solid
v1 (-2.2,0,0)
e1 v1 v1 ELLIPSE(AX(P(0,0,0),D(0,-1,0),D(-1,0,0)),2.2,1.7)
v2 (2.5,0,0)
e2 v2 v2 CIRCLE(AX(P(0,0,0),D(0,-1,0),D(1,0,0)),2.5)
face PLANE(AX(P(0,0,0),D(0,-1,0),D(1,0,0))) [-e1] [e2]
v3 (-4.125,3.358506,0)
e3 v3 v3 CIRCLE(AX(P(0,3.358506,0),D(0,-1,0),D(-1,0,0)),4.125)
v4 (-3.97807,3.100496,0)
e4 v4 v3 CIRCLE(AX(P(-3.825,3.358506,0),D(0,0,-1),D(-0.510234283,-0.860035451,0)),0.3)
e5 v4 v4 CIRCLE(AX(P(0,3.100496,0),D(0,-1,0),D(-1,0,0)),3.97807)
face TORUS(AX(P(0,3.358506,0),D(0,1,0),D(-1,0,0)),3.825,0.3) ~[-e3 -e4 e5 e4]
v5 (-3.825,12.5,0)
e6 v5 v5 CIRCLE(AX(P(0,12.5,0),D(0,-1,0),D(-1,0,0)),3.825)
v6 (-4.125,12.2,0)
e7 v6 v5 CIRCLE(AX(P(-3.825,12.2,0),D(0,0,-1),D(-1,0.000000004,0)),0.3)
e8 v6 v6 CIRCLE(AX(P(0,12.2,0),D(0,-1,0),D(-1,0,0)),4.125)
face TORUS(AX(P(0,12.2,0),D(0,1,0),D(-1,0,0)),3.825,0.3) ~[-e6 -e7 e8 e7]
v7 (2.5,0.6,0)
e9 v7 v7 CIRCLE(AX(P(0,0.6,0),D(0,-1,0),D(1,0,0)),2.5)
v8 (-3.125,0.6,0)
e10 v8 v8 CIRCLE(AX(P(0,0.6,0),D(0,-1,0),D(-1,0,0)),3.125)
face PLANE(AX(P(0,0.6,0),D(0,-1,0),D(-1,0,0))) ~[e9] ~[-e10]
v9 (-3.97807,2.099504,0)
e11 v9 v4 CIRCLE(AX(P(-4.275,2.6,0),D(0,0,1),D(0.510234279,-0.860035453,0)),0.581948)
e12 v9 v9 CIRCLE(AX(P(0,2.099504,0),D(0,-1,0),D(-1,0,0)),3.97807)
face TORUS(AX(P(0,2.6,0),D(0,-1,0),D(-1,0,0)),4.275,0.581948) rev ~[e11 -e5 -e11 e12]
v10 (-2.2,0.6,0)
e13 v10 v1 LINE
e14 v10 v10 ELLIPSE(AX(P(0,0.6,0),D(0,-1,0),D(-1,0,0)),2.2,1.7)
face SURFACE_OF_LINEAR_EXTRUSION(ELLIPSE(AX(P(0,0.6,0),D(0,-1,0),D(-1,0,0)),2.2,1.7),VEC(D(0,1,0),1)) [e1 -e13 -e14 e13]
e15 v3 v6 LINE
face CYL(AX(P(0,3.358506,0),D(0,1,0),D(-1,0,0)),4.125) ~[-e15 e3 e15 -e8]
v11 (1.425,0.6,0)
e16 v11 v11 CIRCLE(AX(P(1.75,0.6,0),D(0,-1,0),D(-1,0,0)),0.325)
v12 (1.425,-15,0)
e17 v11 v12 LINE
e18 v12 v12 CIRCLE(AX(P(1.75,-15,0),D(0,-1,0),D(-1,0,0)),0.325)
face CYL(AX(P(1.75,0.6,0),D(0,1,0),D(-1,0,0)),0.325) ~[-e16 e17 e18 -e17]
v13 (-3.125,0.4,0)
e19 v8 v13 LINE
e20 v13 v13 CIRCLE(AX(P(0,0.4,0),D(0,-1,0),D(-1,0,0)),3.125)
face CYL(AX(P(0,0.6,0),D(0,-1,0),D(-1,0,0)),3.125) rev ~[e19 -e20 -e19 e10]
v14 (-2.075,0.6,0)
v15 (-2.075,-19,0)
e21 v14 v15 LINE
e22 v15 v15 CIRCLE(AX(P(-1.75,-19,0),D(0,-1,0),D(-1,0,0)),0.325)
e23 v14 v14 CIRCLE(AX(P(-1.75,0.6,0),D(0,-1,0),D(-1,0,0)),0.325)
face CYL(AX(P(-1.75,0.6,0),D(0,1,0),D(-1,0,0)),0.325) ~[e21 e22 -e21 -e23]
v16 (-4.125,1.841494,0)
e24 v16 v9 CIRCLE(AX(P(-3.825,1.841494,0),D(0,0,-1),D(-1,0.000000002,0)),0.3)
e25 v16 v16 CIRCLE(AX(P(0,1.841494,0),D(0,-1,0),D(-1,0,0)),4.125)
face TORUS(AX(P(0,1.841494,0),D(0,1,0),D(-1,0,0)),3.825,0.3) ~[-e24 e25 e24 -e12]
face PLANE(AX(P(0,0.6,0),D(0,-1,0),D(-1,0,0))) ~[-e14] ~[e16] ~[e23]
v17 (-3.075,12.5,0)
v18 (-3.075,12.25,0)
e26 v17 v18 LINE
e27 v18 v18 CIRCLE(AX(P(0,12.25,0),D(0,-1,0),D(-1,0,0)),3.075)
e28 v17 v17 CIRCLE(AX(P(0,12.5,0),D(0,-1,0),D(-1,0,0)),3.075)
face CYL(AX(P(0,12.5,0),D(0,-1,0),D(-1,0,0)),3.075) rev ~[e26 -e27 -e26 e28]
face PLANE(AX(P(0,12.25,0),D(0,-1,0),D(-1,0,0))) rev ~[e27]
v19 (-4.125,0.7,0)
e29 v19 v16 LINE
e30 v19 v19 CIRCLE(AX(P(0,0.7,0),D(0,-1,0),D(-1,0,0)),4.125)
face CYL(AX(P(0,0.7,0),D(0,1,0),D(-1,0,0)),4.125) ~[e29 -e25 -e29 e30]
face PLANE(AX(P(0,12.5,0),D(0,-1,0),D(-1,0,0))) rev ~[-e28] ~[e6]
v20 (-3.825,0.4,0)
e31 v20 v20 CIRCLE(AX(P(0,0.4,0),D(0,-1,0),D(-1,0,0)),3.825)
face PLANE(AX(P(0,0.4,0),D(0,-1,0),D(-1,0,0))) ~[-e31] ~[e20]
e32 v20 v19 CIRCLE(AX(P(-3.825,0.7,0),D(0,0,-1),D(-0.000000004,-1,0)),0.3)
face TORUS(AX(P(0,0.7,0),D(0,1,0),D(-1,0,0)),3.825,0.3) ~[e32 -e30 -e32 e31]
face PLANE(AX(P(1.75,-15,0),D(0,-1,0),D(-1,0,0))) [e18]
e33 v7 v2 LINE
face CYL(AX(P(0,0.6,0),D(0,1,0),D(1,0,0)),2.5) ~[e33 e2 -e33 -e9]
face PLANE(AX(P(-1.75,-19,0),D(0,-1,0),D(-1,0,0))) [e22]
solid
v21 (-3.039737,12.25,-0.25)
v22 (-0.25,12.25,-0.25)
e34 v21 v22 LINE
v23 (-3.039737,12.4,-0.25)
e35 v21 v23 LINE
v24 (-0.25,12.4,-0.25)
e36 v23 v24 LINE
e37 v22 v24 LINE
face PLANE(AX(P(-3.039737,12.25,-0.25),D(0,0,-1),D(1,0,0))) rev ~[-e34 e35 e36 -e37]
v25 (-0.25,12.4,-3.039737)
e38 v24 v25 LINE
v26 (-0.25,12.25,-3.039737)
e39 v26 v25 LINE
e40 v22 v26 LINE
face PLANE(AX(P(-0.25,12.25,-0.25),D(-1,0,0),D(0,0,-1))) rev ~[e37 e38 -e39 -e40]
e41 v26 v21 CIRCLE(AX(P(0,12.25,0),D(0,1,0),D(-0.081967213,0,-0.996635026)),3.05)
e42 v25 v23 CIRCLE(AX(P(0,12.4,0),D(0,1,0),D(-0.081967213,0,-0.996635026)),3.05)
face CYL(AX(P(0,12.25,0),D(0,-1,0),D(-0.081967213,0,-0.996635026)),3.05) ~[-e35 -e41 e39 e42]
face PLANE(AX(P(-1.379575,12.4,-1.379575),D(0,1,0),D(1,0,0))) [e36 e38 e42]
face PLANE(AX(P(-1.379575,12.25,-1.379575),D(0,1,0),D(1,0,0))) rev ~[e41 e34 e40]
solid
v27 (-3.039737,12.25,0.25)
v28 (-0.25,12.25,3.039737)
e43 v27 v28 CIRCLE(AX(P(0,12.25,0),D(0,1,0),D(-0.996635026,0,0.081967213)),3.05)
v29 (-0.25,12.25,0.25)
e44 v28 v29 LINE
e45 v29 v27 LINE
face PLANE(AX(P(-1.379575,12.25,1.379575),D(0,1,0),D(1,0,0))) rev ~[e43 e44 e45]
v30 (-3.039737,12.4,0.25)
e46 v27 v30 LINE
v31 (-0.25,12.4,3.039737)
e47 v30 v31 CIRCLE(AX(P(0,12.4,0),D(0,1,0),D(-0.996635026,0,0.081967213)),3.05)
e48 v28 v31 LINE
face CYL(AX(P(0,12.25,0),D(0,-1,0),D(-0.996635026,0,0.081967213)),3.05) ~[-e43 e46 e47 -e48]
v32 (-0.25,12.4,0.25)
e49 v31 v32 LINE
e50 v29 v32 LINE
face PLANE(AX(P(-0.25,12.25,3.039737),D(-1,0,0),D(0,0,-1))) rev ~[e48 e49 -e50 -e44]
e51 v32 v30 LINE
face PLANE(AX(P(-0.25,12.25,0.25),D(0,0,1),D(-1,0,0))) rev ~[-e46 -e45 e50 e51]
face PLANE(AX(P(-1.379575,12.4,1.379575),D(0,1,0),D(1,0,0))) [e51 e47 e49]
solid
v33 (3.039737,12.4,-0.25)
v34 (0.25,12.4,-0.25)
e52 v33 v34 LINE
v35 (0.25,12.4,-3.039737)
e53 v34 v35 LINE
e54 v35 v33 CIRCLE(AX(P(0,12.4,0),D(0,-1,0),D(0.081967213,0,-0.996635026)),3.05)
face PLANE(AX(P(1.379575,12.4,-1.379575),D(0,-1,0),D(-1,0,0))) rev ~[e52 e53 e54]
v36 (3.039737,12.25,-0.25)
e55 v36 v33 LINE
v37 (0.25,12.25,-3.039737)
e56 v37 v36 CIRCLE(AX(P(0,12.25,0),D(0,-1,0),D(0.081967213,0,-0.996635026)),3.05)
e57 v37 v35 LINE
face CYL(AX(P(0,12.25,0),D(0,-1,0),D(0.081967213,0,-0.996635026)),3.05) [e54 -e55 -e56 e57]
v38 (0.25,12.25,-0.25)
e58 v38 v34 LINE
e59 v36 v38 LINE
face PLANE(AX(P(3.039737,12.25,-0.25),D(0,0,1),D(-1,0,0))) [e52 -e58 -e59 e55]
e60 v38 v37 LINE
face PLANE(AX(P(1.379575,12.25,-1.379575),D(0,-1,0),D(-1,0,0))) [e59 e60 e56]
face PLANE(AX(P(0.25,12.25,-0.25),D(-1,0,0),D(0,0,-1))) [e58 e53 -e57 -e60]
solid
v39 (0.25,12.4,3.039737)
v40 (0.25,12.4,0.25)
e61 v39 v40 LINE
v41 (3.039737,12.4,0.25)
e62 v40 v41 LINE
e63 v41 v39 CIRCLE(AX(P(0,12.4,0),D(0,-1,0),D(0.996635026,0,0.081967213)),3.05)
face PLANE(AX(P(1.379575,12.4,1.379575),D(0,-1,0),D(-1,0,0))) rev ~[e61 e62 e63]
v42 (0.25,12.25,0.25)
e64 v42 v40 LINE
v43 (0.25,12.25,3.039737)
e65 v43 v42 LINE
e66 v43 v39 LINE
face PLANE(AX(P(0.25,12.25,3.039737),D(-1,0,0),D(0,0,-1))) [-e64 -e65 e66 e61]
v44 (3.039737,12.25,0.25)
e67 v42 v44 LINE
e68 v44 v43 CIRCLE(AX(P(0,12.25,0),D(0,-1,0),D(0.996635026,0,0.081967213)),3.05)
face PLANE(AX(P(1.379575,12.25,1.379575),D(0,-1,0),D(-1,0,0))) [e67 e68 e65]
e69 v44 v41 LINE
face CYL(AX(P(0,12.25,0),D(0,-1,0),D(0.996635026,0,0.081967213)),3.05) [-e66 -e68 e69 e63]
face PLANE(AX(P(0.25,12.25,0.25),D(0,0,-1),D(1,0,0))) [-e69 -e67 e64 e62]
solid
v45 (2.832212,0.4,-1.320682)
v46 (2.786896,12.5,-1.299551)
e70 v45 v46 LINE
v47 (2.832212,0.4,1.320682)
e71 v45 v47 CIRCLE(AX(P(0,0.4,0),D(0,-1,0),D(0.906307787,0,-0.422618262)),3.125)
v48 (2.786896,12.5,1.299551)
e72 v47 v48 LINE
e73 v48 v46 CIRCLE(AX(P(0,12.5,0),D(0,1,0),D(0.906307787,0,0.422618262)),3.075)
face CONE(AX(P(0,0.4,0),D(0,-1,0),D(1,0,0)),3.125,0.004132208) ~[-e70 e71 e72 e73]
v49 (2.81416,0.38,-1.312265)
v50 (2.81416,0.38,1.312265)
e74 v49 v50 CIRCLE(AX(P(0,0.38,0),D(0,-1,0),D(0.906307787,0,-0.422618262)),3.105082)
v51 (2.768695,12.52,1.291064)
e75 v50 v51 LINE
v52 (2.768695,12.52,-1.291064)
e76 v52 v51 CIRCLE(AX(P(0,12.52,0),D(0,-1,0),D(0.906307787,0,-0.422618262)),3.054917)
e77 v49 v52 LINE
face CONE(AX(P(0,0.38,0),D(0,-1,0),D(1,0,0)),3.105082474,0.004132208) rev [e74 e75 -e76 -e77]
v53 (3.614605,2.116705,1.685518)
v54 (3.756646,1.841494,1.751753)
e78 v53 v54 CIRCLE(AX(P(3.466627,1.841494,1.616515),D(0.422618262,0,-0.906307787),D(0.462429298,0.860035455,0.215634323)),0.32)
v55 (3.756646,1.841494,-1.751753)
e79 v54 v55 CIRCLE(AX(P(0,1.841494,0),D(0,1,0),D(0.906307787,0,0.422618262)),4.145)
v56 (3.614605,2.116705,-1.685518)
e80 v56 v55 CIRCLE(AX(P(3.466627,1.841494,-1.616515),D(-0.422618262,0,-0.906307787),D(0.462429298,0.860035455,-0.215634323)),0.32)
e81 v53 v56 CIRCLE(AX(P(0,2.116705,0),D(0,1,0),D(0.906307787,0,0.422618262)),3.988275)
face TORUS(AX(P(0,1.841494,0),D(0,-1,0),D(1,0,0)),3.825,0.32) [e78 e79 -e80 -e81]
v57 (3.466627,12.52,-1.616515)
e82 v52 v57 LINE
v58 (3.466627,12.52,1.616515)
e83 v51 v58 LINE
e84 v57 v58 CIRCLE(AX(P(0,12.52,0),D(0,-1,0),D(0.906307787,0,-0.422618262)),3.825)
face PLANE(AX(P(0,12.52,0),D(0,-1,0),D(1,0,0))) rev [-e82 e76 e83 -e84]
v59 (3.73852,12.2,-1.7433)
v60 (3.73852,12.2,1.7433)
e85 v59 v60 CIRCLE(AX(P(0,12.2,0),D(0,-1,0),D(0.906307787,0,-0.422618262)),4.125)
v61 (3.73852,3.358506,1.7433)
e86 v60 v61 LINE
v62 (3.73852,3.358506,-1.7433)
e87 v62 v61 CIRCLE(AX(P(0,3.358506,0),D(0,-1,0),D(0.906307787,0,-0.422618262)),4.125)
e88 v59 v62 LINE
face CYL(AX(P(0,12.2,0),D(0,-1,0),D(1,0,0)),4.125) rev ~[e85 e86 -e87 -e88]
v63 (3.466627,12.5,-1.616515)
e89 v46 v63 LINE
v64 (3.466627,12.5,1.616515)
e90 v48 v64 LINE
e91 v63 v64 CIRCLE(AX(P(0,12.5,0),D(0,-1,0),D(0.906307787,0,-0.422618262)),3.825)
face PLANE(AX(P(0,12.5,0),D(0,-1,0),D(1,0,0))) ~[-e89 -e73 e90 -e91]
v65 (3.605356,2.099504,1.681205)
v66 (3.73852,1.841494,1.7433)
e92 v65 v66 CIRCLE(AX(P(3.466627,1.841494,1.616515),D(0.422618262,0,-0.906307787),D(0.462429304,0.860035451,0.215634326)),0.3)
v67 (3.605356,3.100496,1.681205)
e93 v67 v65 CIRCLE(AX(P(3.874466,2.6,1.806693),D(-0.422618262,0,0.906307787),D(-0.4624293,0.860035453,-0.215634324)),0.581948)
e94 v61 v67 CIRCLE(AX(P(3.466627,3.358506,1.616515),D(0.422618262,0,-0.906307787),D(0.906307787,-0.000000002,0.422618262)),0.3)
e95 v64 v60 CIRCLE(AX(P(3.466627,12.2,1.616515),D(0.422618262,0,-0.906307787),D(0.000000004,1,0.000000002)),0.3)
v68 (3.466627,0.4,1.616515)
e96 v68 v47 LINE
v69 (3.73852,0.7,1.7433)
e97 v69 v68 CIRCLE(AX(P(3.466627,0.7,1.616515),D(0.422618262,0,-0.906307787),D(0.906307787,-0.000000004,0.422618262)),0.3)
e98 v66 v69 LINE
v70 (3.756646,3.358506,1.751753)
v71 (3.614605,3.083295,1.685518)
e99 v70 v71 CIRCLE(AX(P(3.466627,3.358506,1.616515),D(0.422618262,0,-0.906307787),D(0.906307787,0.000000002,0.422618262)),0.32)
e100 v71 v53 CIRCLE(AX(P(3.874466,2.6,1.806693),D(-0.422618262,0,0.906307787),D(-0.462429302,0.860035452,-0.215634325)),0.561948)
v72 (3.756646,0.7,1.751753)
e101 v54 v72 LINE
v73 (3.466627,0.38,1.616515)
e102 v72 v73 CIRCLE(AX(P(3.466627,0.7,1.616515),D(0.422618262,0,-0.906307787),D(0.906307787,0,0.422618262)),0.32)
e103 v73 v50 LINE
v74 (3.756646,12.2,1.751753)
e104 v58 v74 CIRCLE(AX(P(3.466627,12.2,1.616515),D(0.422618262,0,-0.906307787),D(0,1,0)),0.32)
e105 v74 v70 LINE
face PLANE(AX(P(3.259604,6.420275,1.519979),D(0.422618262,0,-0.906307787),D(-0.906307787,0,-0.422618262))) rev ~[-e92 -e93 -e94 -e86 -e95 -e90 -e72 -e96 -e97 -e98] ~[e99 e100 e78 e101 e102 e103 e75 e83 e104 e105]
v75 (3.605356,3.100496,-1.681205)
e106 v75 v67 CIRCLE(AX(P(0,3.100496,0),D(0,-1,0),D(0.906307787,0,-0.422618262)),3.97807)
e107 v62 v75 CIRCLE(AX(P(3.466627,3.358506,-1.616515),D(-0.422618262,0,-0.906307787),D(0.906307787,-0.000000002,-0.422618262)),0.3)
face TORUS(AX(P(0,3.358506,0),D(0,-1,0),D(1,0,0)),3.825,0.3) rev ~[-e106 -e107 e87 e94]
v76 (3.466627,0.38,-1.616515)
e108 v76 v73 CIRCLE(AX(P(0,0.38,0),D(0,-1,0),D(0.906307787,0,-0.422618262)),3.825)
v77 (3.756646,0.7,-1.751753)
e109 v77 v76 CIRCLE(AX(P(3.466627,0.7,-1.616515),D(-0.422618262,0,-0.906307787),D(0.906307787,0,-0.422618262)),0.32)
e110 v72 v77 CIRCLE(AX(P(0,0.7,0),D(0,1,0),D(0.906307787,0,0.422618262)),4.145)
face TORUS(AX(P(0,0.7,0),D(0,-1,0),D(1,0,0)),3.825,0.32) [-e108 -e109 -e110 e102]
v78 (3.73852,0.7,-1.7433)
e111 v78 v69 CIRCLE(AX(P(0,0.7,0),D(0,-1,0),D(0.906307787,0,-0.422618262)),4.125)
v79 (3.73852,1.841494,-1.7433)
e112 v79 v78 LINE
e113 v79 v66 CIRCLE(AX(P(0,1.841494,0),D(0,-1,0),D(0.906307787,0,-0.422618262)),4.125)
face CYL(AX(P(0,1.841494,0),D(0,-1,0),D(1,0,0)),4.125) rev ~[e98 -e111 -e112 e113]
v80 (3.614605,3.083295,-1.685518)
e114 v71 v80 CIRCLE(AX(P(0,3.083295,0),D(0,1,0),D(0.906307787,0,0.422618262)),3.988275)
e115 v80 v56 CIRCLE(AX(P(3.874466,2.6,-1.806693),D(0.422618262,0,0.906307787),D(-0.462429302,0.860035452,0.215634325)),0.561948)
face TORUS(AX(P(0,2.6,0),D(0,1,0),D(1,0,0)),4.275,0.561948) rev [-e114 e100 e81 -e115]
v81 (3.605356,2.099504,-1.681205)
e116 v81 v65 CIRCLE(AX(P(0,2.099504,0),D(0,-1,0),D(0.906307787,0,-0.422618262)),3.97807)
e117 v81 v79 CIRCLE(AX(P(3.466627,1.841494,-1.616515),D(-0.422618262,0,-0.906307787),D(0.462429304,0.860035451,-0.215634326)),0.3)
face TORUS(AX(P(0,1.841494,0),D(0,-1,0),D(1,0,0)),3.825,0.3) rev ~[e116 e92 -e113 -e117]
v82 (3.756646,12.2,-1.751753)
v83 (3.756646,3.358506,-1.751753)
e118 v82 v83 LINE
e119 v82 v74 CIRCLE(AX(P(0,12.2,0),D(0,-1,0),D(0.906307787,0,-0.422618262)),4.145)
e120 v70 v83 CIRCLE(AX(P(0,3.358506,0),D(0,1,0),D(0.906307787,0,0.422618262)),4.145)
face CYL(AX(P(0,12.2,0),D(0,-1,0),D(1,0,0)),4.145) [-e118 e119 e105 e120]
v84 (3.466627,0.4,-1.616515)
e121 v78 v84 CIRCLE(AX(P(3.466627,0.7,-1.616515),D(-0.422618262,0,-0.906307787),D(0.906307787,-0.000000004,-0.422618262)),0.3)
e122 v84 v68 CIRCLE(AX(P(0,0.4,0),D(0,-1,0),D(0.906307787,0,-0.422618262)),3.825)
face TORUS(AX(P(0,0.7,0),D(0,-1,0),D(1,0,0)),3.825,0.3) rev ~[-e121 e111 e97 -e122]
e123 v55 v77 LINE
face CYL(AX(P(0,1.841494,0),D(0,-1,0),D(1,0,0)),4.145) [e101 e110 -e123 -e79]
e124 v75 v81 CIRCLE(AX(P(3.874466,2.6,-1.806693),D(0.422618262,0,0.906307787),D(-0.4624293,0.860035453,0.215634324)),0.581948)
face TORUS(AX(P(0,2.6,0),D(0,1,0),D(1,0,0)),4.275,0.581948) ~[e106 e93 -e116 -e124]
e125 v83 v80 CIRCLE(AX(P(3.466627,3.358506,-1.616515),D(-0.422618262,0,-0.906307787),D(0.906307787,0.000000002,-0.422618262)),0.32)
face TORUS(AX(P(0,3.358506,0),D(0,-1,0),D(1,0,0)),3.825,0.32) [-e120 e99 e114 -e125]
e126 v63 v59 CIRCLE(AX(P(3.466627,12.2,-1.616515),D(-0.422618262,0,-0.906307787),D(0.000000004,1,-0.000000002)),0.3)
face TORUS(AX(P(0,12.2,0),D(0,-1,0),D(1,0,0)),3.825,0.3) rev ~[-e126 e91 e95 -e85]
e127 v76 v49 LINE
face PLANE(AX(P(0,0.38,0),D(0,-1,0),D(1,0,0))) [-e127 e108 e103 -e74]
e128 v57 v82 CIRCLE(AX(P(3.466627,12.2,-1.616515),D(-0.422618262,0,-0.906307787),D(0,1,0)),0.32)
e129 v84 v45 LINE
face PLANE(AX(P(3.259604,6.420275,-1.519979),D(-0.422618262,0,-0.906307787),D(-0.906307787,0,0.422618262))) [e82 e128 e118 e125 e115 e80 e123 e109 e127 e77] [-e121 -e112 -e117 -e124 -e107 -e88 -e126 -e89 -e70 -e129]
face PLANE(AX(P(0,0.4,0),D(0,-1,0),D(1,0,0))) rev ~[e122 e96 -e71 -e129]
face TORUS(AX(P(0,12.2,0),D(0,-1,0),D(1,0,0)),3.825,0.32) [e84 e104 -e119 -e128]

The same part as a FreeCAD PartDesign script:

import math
import FreeCAD as App
import Part
import Sketcher
from FreeCAD import Vector
Q = App.Units.Quantity

doc = App.newDocument("Part")
body = doc.addObject("PartDesign::Body", "Body")

sketch1 = body.newObject("Sketcher::SketchObject", "Sketch")
sketch1.AttachmentSupport = (doc.getObject("XY_Plane"), [""])
sketch1.MapMode = "FlatFace"
sketch1.addGeometry(Part.LineSegment(Vector(0, 0.6, 0), Vector(3.12, 0.6, 0)), False)
sketch1.addGeometry(Part.LineSegment(Vector(3.12, 0.6, 0), Vector(3.12, 0.4, 0)), False)
sketch1.addGeometry(Part.LineSegment(Vector(3.12, 0.4, 0), Vector(3.83, 0.4, 0)), False)
sketch1.addGeometry(Part.ArcOfCircle(Part.Circle(Vector(3.82, 0.7, 0), Vector(0, 0, 1), 0.3), math.radians(-90), math.radians(0)), False)
sketch1.addGeometry(Part.LineSegment(Vector(4.12, 0.7, 0), Vector(4.12, 1.84, 0)), False)
sketch1.addGeometry(Part.ArcOfCircle(Part.Circle(Vector(3.82, 1.84, 0), Vector(0, 0, 1), 0.3), math.radians(0), math.radians(59)), False)
sketch1.addGeometry(Part.ArcOfCircle(Part.Circle(Vector(4.28, 2.6, 0), Vector(0, 0, 1), 0.58), math.radians(121), math.radians(239)), False)
sketch1.addGeometry(Part.ArcOfCircle(Part.Circle(Vector(3.82, 3.36, 0), Vector(0, 0, 1), 0.3), math.radians(-59), math.radians(0)), False)
sketch1.addGeometry(Part.LineSegment(Vector(4.12, 3.36, 0), Vector(4.12, 12.2, 0)), False)
sketch1.addGeometry(Part.ArcOfCircle(Part.Circle(Vector(3.82, 12.2, 0), Vector(0, 0, 1), 0.3), math.radians(0), math.radians(90)), False)
sketch1.addGeometry(Part.LineSegment(Vector(3.83, 12.5, 0), Vector(3.08, 12.5, 0)), False)
sketch1.addGeometry(Part.LineSegment(Vector(3.08, 12.5, 0), Vector(3.08, 12.25, 0)), False)
sketch1.addGeometry(Part.LineSegment(Vector(3.08, 12.25, 0), Vector(0, 12.25, 0)), False)
sketch1.addGeometry(Part.LineSegment(Vector(0, 12.25, 0), Vector(0, 0.6, 0)), False)
sketch1.addConstraint(Sketcher.Constraint("Coincident", 0, 2, 1, 1))
sketch1.addConstraint(Sketcher.Constraint("Coincident", 1, 2, 2, 1))
sketch1.addConstraint(Sketcher.Constraint("Tangent", 2, 2, 3, 1))
sketch1.addConstraint(Sketcher.Constraint("Tangent", 3, 2, 4, 1))
sketch1.addConstraint(Sketcher.Constraint("Tangent", 4, 2, 5, 1))
sketch1.addConstraint(Sketcher.Constraint("Tangent", 5, 2, 6, 2))
sketch1.addConstraint(Sketcher.Constraint("Tangent", 6, 1, 7, 1))
sketch1.addConstraint(Sketcher.Constraint("Tangent", 7, 2, 8, 1))
sketch1.addConstraint(Sketcher.Constraint("Tangent", 8, 2, 9, 1))
sketch1.addConstraint(Sketcher.Constraint("Tangent", 9, 2, 10, 1))
sketch1.addConstraint(Sketcher.Constraint("Coincident", 10, 2, 11, 1))
sketch1.addConstraint(Sketcher.Constraint("Coincident", 11, 2, 12, 1))
sketch1.addConstraint(Sketcher.Constraint("Coincident", 12, 2, 13, 1))
sketch1.addConstraint(Sketcher.Constraint("Coincident", 13, 2, 0, 1))
sketch1.addConstraint(Sketcher.Constraint("Horizontal", 0))
sketch1.addConstraint(Sketcher.Constraint("Vertical", 1))
sketch1.addConstraint(Sketcher.Constraint("Horizontal", 2))
sketch1.addConstraint(Sketcher.Constraint("Vertical", 4))
sketch1.addConstraint(Sketcher.Constraint("Vertical", 8))
sketch1.addConstraint(Sketcher.Constraint("Horizontal", 10))
sketch1.addConstraint(Sketcher.Constraint("Vertical", 11))
sketch1.addConstraint(Sketcher.Constraint("Horizontal", 12))
sketch1.addConstraint(Sketcher.Constraint("Vertical", 13))
sketch1.addConstraint(Sketcher.Constraint("Equal", 3, 5))
sketch1.addConstraint(Sketcher.Constraint("Equal", 5, 7))
sketch1.addConstraint(Sketcher.Constraint("Equal", 7, 9))
sketch1.addConstraint(Sketcher.Constraint("PointOnObject", 12, 2, -2))
sketch1.addConstraint(Sketcher.Constraint("Vertical", 5, 3, 7, 3))
sketch1.addConstraint(Sketcher.Constraint("Radius", 3, Q("0.3 mm")))
sketch1.addConstraint(Sketcher.Constraint("DistanceX", 2, 1, 2, 2, Q("0.7 mm")))
sketch1.addConstraint(Sketcher.Constraint("DistanceY", 1, 2, 1, 1, Q("0.2 mm")))
sketch1.addConstraint(Sketcher.Constraint("DistanceY", 0, 2, 6, 3, Q("2 mm")))
sketch1.addConstraint(Sketcher.Constraint("DistanceX", 10, 2, 10, 1, Q("0.75 mm")))
sketch1.addConstraint(Sketcher.Constraint("DistanceY", 11, 2, 11, 1, Q("0.25 mm")))
sketch1.addConstraint(Sketcher.Constraint("DistanceY", 13, 2, 13, 1, Q("11.65 mm")))
sketch1.addConstraint(Sketcher.Constraint("DistanceY", -1, 1, 3, 3, Q("0.7 mm")))
sketch1.addConstraint(Sketcher.Constraint("DistanceX", 0, 1, 0, 2, Q("3.125 mm")))
sketch1.addConstraint(Sketcher.Constraint("DistanceX", 5, 3, 6, 3, Q("0.45 mm")))
sketch1.addConstraint(Sketcher.Constraint("Radius", 6, Q("0.581948 mm")))
revolution = body.newObject("PartDesign::Revolution", "Revolution")
revolution.Profile = sketch1
revolution.ReferenceAxis = (sketch1, ["V_Axis"])
revolution.Angle = 360
body2 = doc.addObject("PartDesign::Body", "Body001")

sketch2 = body2.newObject("Sketcher::SketchObject", "Sketch001")
sketch2.AttachmentSupport = (doc.getObject("XZ_Plane001"), [""])
sketch2.MapMode = "FlatFace"
sketch2.AttachmentOffset = App.Placement(Vector(0, 0, -12.25), App.Rotation())
sketch2.addGeometry(Part.LineSegment(Vector(-0.2, -0.2, 0), Vector(-0.2, -3, 0)), False)
sketch2.addGeometry(Part.ArcOfCircle(Part.Circle(Vector(0, 0, 0), Vector(0, 0, 1), 3), math.radians(-175), math.radians(-95)), False)
sketch2.addGeometry(Part.LineSegment(Vector(-3, -0.2, 0), Vector(-0.2, -0.2, 0)), False)
sketch2.addConstraint(Sketcher.Constraint("Coincident", 0, 2, 1, 2))
sketch2.addConstraint(Sketcher.Constraint("Coincident", 1, 1, 2, 1))
sketch2.addConstraint(Sketcher.Constraint("Coincident", 2, 2, 0, 1))
sketch2.addConstraint(Sketcher.Constraint("Vertical", 0))
sketch2.addConstraint(Sketcher.Constraint("Horizontal", 2))
sketch2.addConstraint(Sketcher.Constraint("Coincident", 1, 3, -1, 1))
sketch2.addConstraint(Sketcher.Constraint("Equal", 2, 0))
sketch2.addConstraint(Sketcher.Constraint("Radius", 1, Q("3.05 mm")))
sketch2.addConstraint(Sketcher.Constraint("DistanceX", 0, 2, -1, 1, Q("0.25 mm")))
pad1 = body2.newObject("PartDesign::Pad", "Pad")
pad1.Profile = sketch2
pad1.Length = 0.15
pad1.Reversed = True
body3 = doc.addObject("PartDesign::Body", "Body002")

sketch3 = body3.newObject("Sketcher::SketchObject", "Sketch002")
sketch3.AttachmentSupport = (doc.getObject("XZ_Plane002"), [""])
sketch3.MapMode = "FlatFace"
sketch3.AttachmentOffset = App.Placement(Vector(0, 0, -12.25), App.Rotation())
sketch3.addGeometry(Part.LineSegment(Vector(0.2, 0.2, 0), Vector(0.2, 3, 0)), False)
sketch3.addGeometry(Part.ArcOfCircle(Part.Circle(Vector(0, 0, 0), Vector(0, 0, 1), 3), math.radians(5), math.radians(85)), False)
sketch3.addGeometry(Part.LineSegment(Vector(3, 0.2, 0), Vector(0.2, 0.2, 0)), False)
sketch3.addConstraint(Sketcher.Constraint("Coincident", 0, 2, 1, 2))
sketch3.addConstraint(Sketcher.Constraint("Coincident", 1, 1, 2, 1))
sketch3.addConstraint(Sketcher.Constraint("Coincident", 2, 2, 0, 1))
sketch3.addConstraint(Sketcher.Constraint("Vertical", 0))
sketch3.addConstraint(Sketcher.Constraint("Horizontal", 2))
sketch3.addConstraint(Sketcher.Constraint("Coincident", 1, 3, -1, 1))
sketch3.addConstraint(Sketcher.Constraint("Equal", 2, 0))
sketch3.addConstraint(Sketcher.Constraint("Radius", 1, Q("3.05 mm")))
sketch3.addConstraint(Sketcher.Constraint("DistanceX", -1, 1, 0, 2, Q("0.25 mm")))
pad2 = body3.newObject("PartDesign::Pad", "Pad001")
pad2.Profile = sketch3
pad2.Length = 0.15
pad2.Reversed = True
body4 = doc.addObject("PartDesign::Body", "Body003")

sketch4 = body4.newObject("Sketcher::SketchObject", "Sketch003")
sketch4.AttachmentSupport = (doc.getObject("XZ_Plane003"), [""])
sketch4.MapMode = "FlatFace"
sketch4.AttachmentOffset = App.Placement(Vector(0, 0, -12.25), App.Rotation())
sketch4.addGeometry(Part.LineSegment(Vector(-0.2, 3, 0), Vector(-0.2, 0.2, 0)), False)
sketch4.addGeometry(Part.LineSegment(Vector(-0.2, 0.2, 0), Vector(-3, 0.2, 0)), False)
sketch4.addGeometry(Part.ArcOfCircle(Part.Circle(Vector(0, 0, 0), Vector(0, 0, 1), 3), math.radians(95), math.radians(175)), False)
sketch4.addConstraint(Sketcher.Constraint("Coincident", 0, 2, 1, 1))
sketch4.addConstraint(Sketcher.Constraint("Coincident", 1, 2, 2, 2))
sketch4.addConstraint(Sketcher.Constraint("Coincident", 2, 1, 0, 1))
sketch4.addConstraint(Sketcher.Constraint("Vertical", 0))
sketch4.addConstraint(Sketcher.Constraint("Horizontal", 1))
sketch4.addConstraint(Sketcher.Constraint("Coincident", 2, 3, -1, 1))
sketch4.addConstraint(Sketcher.Constraint("Equal", 1, 0))
sketch4.addConstraint(Sketcher.Constraint("Radius", 2, Q("3.05 mm")))
sketch4.addConstraint(Sketcher.Constraint("DistanceX", 0, 2, -1, 1, Q("0.25 mm")))
pad3 = body4.newObject("PartDesign::Pad", "Pad002")
pad3.Profile = sketch4
pad3.Length = 0.15
pad3.Reversed = True
body5 = doc.addObject("PartDesign::Body", "Body004")

sketch5 = body5.newObject("Sketcher::SketchObject", "Sketch004")
sketch5.AttachmentSupport = (doc.getObject("XZ_Plane004"), [""])
sketch5.MapMode = "FlatFace"
sketch5.AttachmentOffset = App.Placement(Vector(0, 0, -12.25), App.Rotation())
sketch5.addGeometry(Part.LineSegment(Vector(0.2, -3, 0), Vector(0.2, -0.2, 0)), False)
sketch5.addGeometry(Part.LineSegment(Vector(0.2, -0.2, 0), Vector(3, -0.2, 0)), False)
sketch5.addGeometry(Part.ArcOfCircle(Part.Circle(Vector(0, 0, 0), Vector(0, 0, 1), 3), math.radians(-85), math.radians(-5)), False)
sketch5.addConstraint(Sketcher.Constraint("Coincident", 0, 2, 1, 1))
sketch5.addConstraint(Sketcher.Constraint("Coincident", 1, 2, 2, 2))
sketch5.addConstraint(Sketcher.Constraint("Coincident", 2, 1, 0, 1))
sketch5.addConstraint(Sketcher.Constraint("Vertical", 0))
sketch5.addConstraint(Sketcher.Constraint("Horizontal", 1))
sketch5.addConstraint(Sketcher.Constraint("Coincident", 2, 3, -1, 1))
sketch5.addConstraint(Sketcher.Constraint("Equal", 1, 0))
sketch5.addConstraint(Sketcher.Constraint("Radius", 2, Q("3.05 mm")))
sketch5.addConstraint(Sketcher.Constraint("DistanceX", -1, 1, 0, 2, Q("0.25 mm")))
pad4 = body5.newObject("PartDesign::Pad", "Pad003")
pad4.Profile = sketch5
pad4.Length = 0.15
pad4.Reversed = True
body6 = doc.addObject("PartDesign::Body", "Body005")

sketch6 = body6.newObject("Sketcher::SketchObject", "Sketch005")
sketch6.AttachmentSupport = (doc.getObject("XZ_Plane005"), [""])
sketch6.MapMode = "FlatFace"
sketch6.AttachmentOffset = App.Placement(Vector(0, 0, -0.6), App.Rotation())
sketch6.addGeometry(Part.Circle(Vector(0, 0, 0), Vector(0, 0, 1), 2.5), False)
sketch6.addGeometry(Part.Ellipse(Vector(-2.2, 0, 0), Vector(0, -1.7, 0), Vector(0, 0, 0)), False)
sketch6.addConstraint(Sketcher.Constraint("Block", 1))
sketch6.addConstraint(Sketcher.Constraint("Coincident", 0, 3, -1, 1))
sketch6.addConstraint(Sketcher.Constraint("Diameter", 0, Q("5 mm")))
pad5 = body6.newObject("PartDesign::Pad", "Pad004")
pad5.Profile = sketch6
pad5.Length = 0.6
body7 = doc.addObject("PartDesign::Body", "Body006")

sketch7 = body7.newObject("Sketcher::SketchObject", "Sketch006")
sketch7.AttachmentSupport = (doc.getObject("XY_Plane006"), [""])
sketch7.MapMode = "FlatFace"
sketch7.addGeometry(Part.LineSegment(Vector(4.14, 3.36, 0), Vector(4.14, 12.2, 0)), False)
sketch7.addGeometry(Part.ArcOfCircle(Part.Circle(Vector(3.83, 12.2, 0), Vector(0, 0, 1), 0.32), math.radians(0), math.radians(90)), False)
sketch7.addGeometry(Part.LineSegment(Vector(3.83, 12.52, 0), Vector(3.05, 12.52, 0)), False)
sketch7.addGeometry(Part.LineSegment(Vector(3.05, 12.52, 0), Vector(3.11, 0.38, 0)), False)
sketch7.addGeometry(Part.LineSegment(Vector(3.11, 0.38, 0), Vector(3.83, 0.38, 0)), False)
sketch7.addGeometry(Part.ArcOfCircle(Part.Circle(Vector(3.83, 0.7, 0), Vector(0, 0, 1), 0.32), math.radians(-90), math.radians(0)), False)
sketch7.addGeometry(Part.LineSegment(Vector(4.14, 0.7, 0), Vector(4.14, 1.84, 0)), False)
sketch7.addGeometry(Part.ArcOfCircle(Part.Circle(Vector(3.83, 1.84, 0), Vector(0, 0, 1), 0.32), math.radians(0), math.radians(59)), False)
sketch7.addGeometry(Part.ArcOfCircle(Part.Circle(Vector(4.28, 2.6, 0), Vector(0, 0, 1), 0.56), math.radians(121), math.radians(239)), False)
sketch7.addGeometry(Part.ArcOfCircle(Part.Circle(Vector(3.83, 3.36, 0), Vector(0, 0, 1), 0.32), math.radians(-59), math.radians(0)), False)
sketch7.addGeometry(Part.LineSegment(Vector(3.08, 12.5, 0), Vector(3.83, 12.5, 0)), False)
sketch7.addGeometry(Part.ArcOfCircle(Part.Circle(Vector(3.82, 12.2, 0), Vector(0, 0, 1), 0.3), math.radians(0), math.radians(90)), False)
sketch7.addGeometry(Part.LineSegment(Vector(4.12, 12.2, 0), Vector(4.12, 3.36, 0)), False)
sketch7.addGeometry(Part.ArcOfCircle(Part.Circle(Vector(3.82, 3.36, 0), Vector(0, 0, 1), 0.3), math.radians(-59), math.radians(0)), False)
sketch7.addGeometry(Part.ArcOfCircle(Part.Circle(Vector(4.28, 2.6, 0), Vector(0, 0, 1), 0.58), math.radians(121), math.radians(239)), False)
sketch7.addGeometry(Part.ArcOfCircle(Part.Circle(Vector(3.82, 1.84, 0), Vector(0, 0, 1), 0.3), math.radians(0), math.radians(59)), False)
sketch7.addGeometry(Part.LineSegment(Vector(4.12, 1.84, 0), Vector(4.12, 0.7, 0)), False)
sketch7.addGeometry(Part.ArcOfCircle(Part.Circle(Vector(3.82, 0.7, 0), Vector(0, 0, 1), 0.3), math.radians(-90), math.radians(0)), False)
sketch7.addGeometry(Part.LineSegment(Vector(3.83, 0.4, 0), Vector(3.12, 0.4, 0)), False)
sketch7.addGeometry(Part.LineSegment(Vector(3.12, 0.4, 0), Vector(3.08, 12.5, 0)), False)
sketch7.addConstraint(Sketcher.Constraint("Tangent", 0, 2, 1, 1))
sketch7.addConstraint(Sketcher.Constraint("Tangent", 1, 2, 2, 1))
sketch7.addConstraint(Sketcher.Constraint("Coincident", 2, 2, 3, 1))
sketch7.addConstraint(Sketcher.Constraint("Coincident", 3, 2, 4, 1))
sketch7.addConstraint(Sketcher.Constraint("Tangent", 4, 2, 5, 1))
sketch7.addConstraint(Sketcher.Constraint("Tangent", 5, 2, 6, 1))
sketch7.addConstraint(Sketcher.Constraint("Tangent", 6, 2, 7, 1))
sketch7.addConstraint(Sketcher.Constraint("Tangent", 7, 2, 8, 2))
sketch7.addConstraint(Sketcher.Constraint("Tangent", 8, 1, 9, 1))
sketch7.addConstraint(Sketcher.Constraint("Tangent", 9, 2, 0, 1))
sketch7.addConstraint(Sketcher.Constraint("Tangent", 10, 2, 11, 2))
sketch7.addConstraint(Sketcher.Constraint("Tangent", 11, 1, 12, 1))
sketch7.addConstraint(Sketcher.Constraint("Tangent", 12, 2, 13, 2))
sketch7.addConstraint(Sketcher.Constraint("Tangent", 13, 1, 14, 1))
sketch7.addConstraint(Sketcher.Constraint("Tangent", 14, 2, 15, 2))
sketch7.addConstraint(Sketcher.Constraint("Tangent", 15, 1, 16, 1))
sketch7.addConstraint(Sketcher.Constraint("Tangent", 16, 2, 17, 2))
sketch7.addConstraint(Sketcher.Constraint("Tangent", 17, 1, 18, 1))
sketch7.addConstraint(Sketcher.Constraint("Coincident", 18, 2, 19, 1))
sketch7.addConstraint(Sketcher.Constraint("Coincident", 19, 2, 10, 1))
sketch7.addConstraint(Sketcher.Constraint("Vertical", 0))
sketch7.addConstraint(Sketcher.Constraint("Horizontal", 2))
sketch7.addConstraint(Sketcher.Constraint("Horizontal", 4))
sketch7.addConstraint(Sketcher.Constraint("Vertical", 6))
sketch7.addConstraint(Sketcher.Constraint("Horizontal", 10))
sketch7.addConstraint(Sketcher.Constraint("Vertical", 12))
sketch7.addConstraint(Sketcher.Constraint("Vertical", 16))
sketch7.addConstraint(Sketcher.Constraint("Horizontal", 18))
sketch7.addConstraint(Sketcher.Constraint("Coincident", 11, 3, 1, 3))
sketch7.addConstraint(Sketcher.Constraint("Coincident", 13, 3, 9, 3))
sketch7.addConstraint(Sketcher.Constraint("Coincident", 14, 3, 8, 3))
sketch7.addConstraint(Sketcher.Constraint("Coincident", 15, 3, 7, 3))
sketch7.addConstraint(Sketcher.Constraint("Coincident", 17, 3, 5, 3))
sketch7.addConstraint(Sketcher.Constraint("Equal", 1, 5))
sketch7.addConstraint(Sketcher.Constraint("Equal", 5, 7))
sketch7.addConstraint(Sketcher.Constraint("Equal", 7, 9))
sketch7.addConstraint(Sketcher.Constraint("Parallel", 3, 19))
sketch7.addConstraint(Sketcher.Constraint("Vertical", 1, 3, 5, 3))
sketch7.addConstraint(Sketcher.Constraint("Radius", 11, Q("0.3 mm")))
sketch7.addConstraint(Sketcher.Constraint("Radius", 1, Q("0.32 mm")))
sketch7.addConstraint(Sketcher.Constraint("DistanceX", 18, 2, 18, 1, Q("0.7 mm")))
sketch7.addConstraint(Sketcher.Constraint("DistanceX", 10, 1, 10, 2, Q("0.75 mm")))
sketch7.addConstraint(Sketcher.Constraint("DistanceY", -1, 1, 1, 3, Q("12.2 mm")))
sketch7.addConstraint(Sketcher.Constraint("DistanceY", -1, 1, 5, 3, Q("0.7 mm")))
sketch7.addConstraint(Sketcher.Constraint("DistanceY", -1, 1, 8, 3, Q("2.6 mm")))
sketch7.addConstraint(Sketcher.Constraint("DistanceX", 7, 3, 8, 3, Q("0.45 mm")))
sketch7.addConstraint(Sketcher.Constraint("DistanceX", -1, 1, 1, 3, Q("3.825 mm")))
sketch7.addConstraint(Sketcher.Constraint("Radius", 8, Q("0.561948 mm")))
sketch7.addConstraint(Sketcher.Constraint("DistanceX", 2, 2, 2, 1, Q("0.770083 mm")))
revolution2 = body7.newObject("PartDesign::Revolution", "Revolution001")
revolution2.Profile = sketch7
revolution2.ReferenceAxis = (sketch7, ["V_Axis"])
revolution2.Angle = 25

sketch8 = body7.newObject("Sketcher::SketchObject", "Sketch007")
sketch8.AttachmentSupport = (doc.getObject("XY_Plane006"), [""])
sketch8.MapMode = "FlatFace"
sketch8.addGeometry(Part.LineSegment(Vector(4.14, 3.36, 0), Vector(4.14, 12.2, 0)), False)
sketch8.addGeometry(Part.ArcOfCircle(Part.Circle(Vector(3.83, 12.2, 0), Vector(0, 0, 1), 0.32), math.radians(0), math.radians(90)), False)
sketch8.addGeometry(Part.LineSegment(Vector(3.83, 12.52, 0), Vector(3.05, 12.52, 0)), False)
sketch8.addGeometry(Part.LineSegment(Vector(3.05, 12.52, 0), Vector(3.11, 0.38, 0)), False)
sketch8.addGeometry(Part.LineSegment(Vector(3.11, 0.38, 0), Vector(3.83, 0.38, 0)), False)
sketch8.addGeometry(Part.ArcOfCircle(Part.Circle(Vector(3.83, 0.7, 0), Vector(0, 0, 1), 0.32), math.radians(-90), math.radians(0)), False)
sketch8.addGeometry(Part.LineSegment(Vector(4.14, 0.7, 0), Vector(4.14, 1.84, 0)), False)
sketch8.addGeometry(Part.ArcOfCircle(Part.Circle(Vector(3.83, 1.84, 0), Vector(0, 0, 1), 0.32), math.radians(0), math.radians(59)), False)
sketch8.addGeometry(Part.ArcOfCircle(Part.Circle(Vector(4.28, 2.6, 0), Vector(0, 0, 1), 0.56), math.radians(121), math.radians(239)), False)
sketch8.addGeometry(Part.ArcOfCircle(Part.Circle(Vector(3.83, 3.36, 0), Vector(0, 0, 1), 0.32), math.radians(-59), math.radians(0)), False)
sketch8.addGeometry(Part.LineSegment(Vector(3.08, 12.5, 0), Vector(3.83, 12.5, 0)), False)
sketch8.addGeometry(Part.ArcOfCircle(Part.Circle(Vector(3.82, 12.2, 0), Vector(0, 0, 1), 0.3), math.radians(0), math.radians(90)), False)
sketch8.addGeometry(Part.LineSegment(Vector(4.12, 12.2, 0), Vector(4.12, 3.36, 0)), False)
sketch8.addGeometry(Part.ArcOfCircle(Part.Circle(Vector(3.82, 3.36, 0), Vector(0, 0, 1), 0.3), math.radians(-59), math.radians(0)), False)
sketch8.addGeometry(Part.ArcOfCircle(Part.Circle(Vector(4.28, 2.6, 0), Vector(0, 0, 1), 0.58), math.radians(121), math.radians(239)), False)
sketch8.addGeometry(Part.ArcOfCircle(Part.Circle(Vector(3.82, 1.84, 0), Vector(0, 0, 1), 0.3), math.radians(0), math.radians(59)), False)
sketch8.addGeometry(Part.LineSegment(Vector(4.12, 1.84, 0), Vector(4.12, 0.7, 0)), False)
sketch8.addGeometry(Part.ArcOfCircle(Part.Circle(Vector(3.82, 0.7, 0), Vector(0, 0, 1), 0.3), math.radians(-90), math.radians(0)), False)
sketch8.addGeometry(Part.LineSegment(Vector(3.83, 0.4, 0), Vector(3.12, 0.4, 0)), False)
sketch8.addGeometry(Part.LineSegment(Vector(3.12, 0.4, 0), Vector(3.08, 12.5, 0)), False)
sketch8.addConstraint(Sketcher.Constraint("Tangent", 0, 2, 1, 1))
sketch8.addConstraint(Sketcher.Constraint("Tangent", 1, 2, 2, 1))
sketch8.addConstraint(Sketcher.Constraint("Coincident", 2, 2, 3, 1))
sketch8.addConstraint(Sketcher.Constraint("Coincident", 3, 2, 4, 1))
sketch8.addConstraint(Sketcher.Constraint("Tangent", 4, 2, 5, 1))
sketch8.addConstraint(Sketcher.Constraint("Tangent", 5, 2, 6, 1))
sketch8.addConstraint(Sketcher.Constraint("Tangent", 6, 2, 7, 1))
sketch8.addConstraint(Sketcher.Constraint("Tangent", 7, 2, 8, 2))
sketch8.addConstraint(Sketcher.Constraint("Tangent", 8, 1, 9, 1))
sketch8.addConstraint(Sketcher.Constraint("Tangent", 9, 2, 0, 1))
sketch8.addConstraint(Sketcher.Constraint("Tangent", 10, 2, 11, 2))
sketch8.addConstraint(Sketcher.Constraint("Tangent", 11, 1, 12, 1))
sketch8.addConstraint(Sketcher.Constraint("Tangent", 12, 2, 13, 2))
sketch8.addConstraint(Sketcher.Constraint("Tangent", 13, 1, 14, 1))
sketch8.addConstraint(Sketcher.Constraint("Tangent", 14, 2, 15, 2))
sketch8.addConstraint(Sketcher.Constraint("Tangent", 15, 1, 16, 1))
sketch8.addConstraint(Sketcher.Constraint("Tangent", 16, 2, 17, 2))
sketch8.addConstraint(Sketcher.Constraint("Tangent", 17, 1, 18, 1))
sketch8.addConstraint(Sketcher.Constraint("Coincident", 18, 2, 19, 1))
sketch8.addConstraint(Sketcher.Constraint("Coincident", 19, 2, 10, 1))
sketch8.addConstraint(Sketcher.Constraint("Vertical", 0))
sketch8.addConstraint(Sketcher.Constraint("Horizontal", 2))
sketch8.addConstraint(Sketcher.Constraint("Horizontal", 4))
sketch8.addConstraint(Sketcher.Constraint("Vertical", 6))
sketch8.addConstraint(Sketcher.Constraint("Horizontal", 10))
sketch8.addConstraint(Sketcher.Constraint("Vertical", 12))
sketch8.addConstraint(Sketcher.Constraint("Vertical", 16))
sketch8.addConstraint(Sketcher.Constraint("Horizontal", 18))
sketch8.addConstraint(Sketcher.Constraint("Coincident", 11, 3, 1, 3))
sketch8.addConstraint(Sketcher.Constraint("Coincident", 13, 3, 9, 3))
sketch8.addConstraint(Sketcher.Constraint("Coincident", 14, 3, 8, 3))
sketch8.addConstraint(Sketcher.Constraint("Coincident", 15, 3, 7, 3))
sketch8.addConstraint(Sketcher.Constraint("Coincident", 17, 3, 5, 3))
sketch8.addConstraint(Sketcher.Constraint("Equal", 1, 5))
sketch8.addConstraint(Sketcher.Constraint("Equal", 5, 7))
sketch8.addConstraint(Sketcher.Constraint("Equal", 7, 9))
sketch8.addConstraint(Sketcher.Constraint("Parallel", 3, 19))
sketch8.addConstraint(Sketcher.Constraint("Vertical", 1, 3, 5, 3))
sketch8.addConstraint(Sketcher.Constraint("Radius", 11, Q("0.3 mm")))
sketch8.addConstraint(Sketcher.Constraint("Radius", 1, Q("0.32 mm")))
sketch8.addConstraint(Sketcher.Constraint("DistanceX", 18, 2, 18, 1, Q("0.7 mm")))
sketch8.addConstraint(Sketcher.Constraint("DistanceX", 10, 1, 10, 2, Q("0.75 mm")))
sketch8.addConstraint(Sketcher.Constraint("DistanceY", -1, 1, 1, 3, Q("12.2 mm")))
sketch8.addConstraint(Sketcher.Constraint("DistanceY", -1, 1, 5, 3, Q("0.7 mm")))
sketch8.addConstraint(Sketcher.Constraint("DistanceY", -1, 1, 8, 3, Q("2.6 mm")))
sketch8.addConstraint(Sketcher.Constraint("DistanceX", 7, 3, 8, 3, Q("0.45 mm")))
sketch8.addConstraint(Sketcher.Constraint("DistanceX", -1, 1, 1, 3, Q("3.825 mm")))
sketch8.addConstraint(Sketcher.Constraint("Radius", 8, Q("0.561948 mm")))
sketch8.addConstraint(Sketcher.Constraint("DistanceX", 2, 2, 2, 1, Q("0.770083 mm")))
revolution3 = body7.newObject("PartDesign::Revolution", "Revolution002")
revolution3.Profile = sketch8
revolution3.ReferenceAxis = (sketch8, ["V_Axis"])
revolution3.Angle = 25
revolution3.Reversed = True
doc.recompute()

boolean = body.newObject("PartDesign::Boolean", "Boolean")
boolean.Type = "Fuse"
boolean.addObjects([body6])

sketch9 = body.newObject("Sketcher::SketchObject", "Sketch008")
sketch9.AttachmentSupport = (doc.getObject("XZ_Plane"), [""])
sketch9.MapMode = "FlatFace"
sketch9.AttachmentOffset = App.Placement(Vector(0, 0, -0.6), App.Rotation())
sketch9.addGeometry(Part.Circle(Vector(-1.75, 0, 0), Vector(0, 0, 1), 0.33), False)
sketch9.addConstraint(Sketcher.Constraint("PointOnObject", 0, 3, -1))
sketch9.addConstraint(Sketcher.Constraint("Diameter", 0, Q("0.65 mm")))
sketch9.addConstraint(Sketcher.Constraint("DistanceX", 0, 3, -1, 1, Q("1.75 mm")))
pad6 = body.newObject("PartDesign::Pad", "Pad005")
pad6.Profile = sketch9
pad6.Length = 19.6

sketch10 = body.newObject("Sketcher::SketchObject", "Sketch009")
sketch10.AttachmentSupport = (doc.getObject("XZ_Plane"), [""])
sketch10.MapMode = "FlatFace"
sketch10.AttachmentOffset = App.Placement(Vector(0, 0, -0.6), App.Rotation())
sketch10.addGeometry(Part.Circle(Vector(1.75, 0, 0), Vector(0, 0, 1), 0.33), False)
sketch10.addConstraint(Sketcher.Constraint("PointOnObject", 0, 3, -1))
sketch10.addConstraint(Sketcher.Constraint("Diameter", 0, Q("0.65 mm")))
sketch10.addConstraint(Sketcher.Constraint("DistanceX", -1, 1, 0, 3, Q("1.75 mm")))
pad7 = body.newObject("PartDesign::Pad", "Pad006")
pad7.Profile = sketch10
pad7.Length = 15.6

doc.recompute()
